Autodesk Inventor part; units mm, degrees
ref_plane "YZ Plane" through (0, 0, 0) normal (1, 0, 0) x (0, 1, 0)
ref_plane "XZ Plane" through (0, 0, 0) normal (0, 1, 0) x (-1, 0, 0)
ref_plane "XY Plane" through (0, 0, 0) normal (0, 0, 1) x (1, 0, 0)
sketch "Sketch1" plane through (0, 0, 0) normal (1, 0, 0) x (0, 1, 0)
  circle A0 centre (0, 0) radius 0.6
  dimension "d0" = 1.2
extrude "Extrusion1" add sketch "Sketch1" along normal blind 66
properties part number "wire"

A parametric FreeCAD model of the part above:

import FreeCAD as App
import Part
import Sketcher

V = App.Vector
Q = App.Units.Quantity

doc = App.newDocument("Part")
params = doc.addObject("Spreadsheet::Sheet", "Params")
for row, (alias, value) in enumerate([
    ("sketch1_diameter", "1.2 mm"),
    ("pad1_length", "66 mm"),
], start=1):
    params.set(f"A{row}", alias)
    params.set(f"B{row}", "=" + value)
    params.setAlias(f"B{row}", alias)

body = doc.addObject("PartDesign::Body", "Body")

sketch1 = doc.addObject("Sketcher::SketchObject", "Sketch")
body.addObject(sketch1)
sketch1.AttachmentSupport = (doc.YZ_Plane, [""])
sketch1.MapMode = "FlatFace"
sketch1.addGeometry(Part.Circle(V(0, 0, 0), V(0, 0, 1), 0.6), False)
sketch1.addConstraint(Sketcher.Constraint("Coincident", 0, 3, -1, 1))
sketch1.addConstraint(Sketcher.Constraint("Diameter", 0, Q("1.2 mm")))
sketch1.setExpression("Constraints[1]", "Params.sketch1_diameter")
pad1 = doc.addObject("PartDesign::Pad", "Pad")
body.addObject(pad1)
pad1.Profile = sketch1
pad1.setExpression("Length", "Params.pad1_length")

doc.recompute()
